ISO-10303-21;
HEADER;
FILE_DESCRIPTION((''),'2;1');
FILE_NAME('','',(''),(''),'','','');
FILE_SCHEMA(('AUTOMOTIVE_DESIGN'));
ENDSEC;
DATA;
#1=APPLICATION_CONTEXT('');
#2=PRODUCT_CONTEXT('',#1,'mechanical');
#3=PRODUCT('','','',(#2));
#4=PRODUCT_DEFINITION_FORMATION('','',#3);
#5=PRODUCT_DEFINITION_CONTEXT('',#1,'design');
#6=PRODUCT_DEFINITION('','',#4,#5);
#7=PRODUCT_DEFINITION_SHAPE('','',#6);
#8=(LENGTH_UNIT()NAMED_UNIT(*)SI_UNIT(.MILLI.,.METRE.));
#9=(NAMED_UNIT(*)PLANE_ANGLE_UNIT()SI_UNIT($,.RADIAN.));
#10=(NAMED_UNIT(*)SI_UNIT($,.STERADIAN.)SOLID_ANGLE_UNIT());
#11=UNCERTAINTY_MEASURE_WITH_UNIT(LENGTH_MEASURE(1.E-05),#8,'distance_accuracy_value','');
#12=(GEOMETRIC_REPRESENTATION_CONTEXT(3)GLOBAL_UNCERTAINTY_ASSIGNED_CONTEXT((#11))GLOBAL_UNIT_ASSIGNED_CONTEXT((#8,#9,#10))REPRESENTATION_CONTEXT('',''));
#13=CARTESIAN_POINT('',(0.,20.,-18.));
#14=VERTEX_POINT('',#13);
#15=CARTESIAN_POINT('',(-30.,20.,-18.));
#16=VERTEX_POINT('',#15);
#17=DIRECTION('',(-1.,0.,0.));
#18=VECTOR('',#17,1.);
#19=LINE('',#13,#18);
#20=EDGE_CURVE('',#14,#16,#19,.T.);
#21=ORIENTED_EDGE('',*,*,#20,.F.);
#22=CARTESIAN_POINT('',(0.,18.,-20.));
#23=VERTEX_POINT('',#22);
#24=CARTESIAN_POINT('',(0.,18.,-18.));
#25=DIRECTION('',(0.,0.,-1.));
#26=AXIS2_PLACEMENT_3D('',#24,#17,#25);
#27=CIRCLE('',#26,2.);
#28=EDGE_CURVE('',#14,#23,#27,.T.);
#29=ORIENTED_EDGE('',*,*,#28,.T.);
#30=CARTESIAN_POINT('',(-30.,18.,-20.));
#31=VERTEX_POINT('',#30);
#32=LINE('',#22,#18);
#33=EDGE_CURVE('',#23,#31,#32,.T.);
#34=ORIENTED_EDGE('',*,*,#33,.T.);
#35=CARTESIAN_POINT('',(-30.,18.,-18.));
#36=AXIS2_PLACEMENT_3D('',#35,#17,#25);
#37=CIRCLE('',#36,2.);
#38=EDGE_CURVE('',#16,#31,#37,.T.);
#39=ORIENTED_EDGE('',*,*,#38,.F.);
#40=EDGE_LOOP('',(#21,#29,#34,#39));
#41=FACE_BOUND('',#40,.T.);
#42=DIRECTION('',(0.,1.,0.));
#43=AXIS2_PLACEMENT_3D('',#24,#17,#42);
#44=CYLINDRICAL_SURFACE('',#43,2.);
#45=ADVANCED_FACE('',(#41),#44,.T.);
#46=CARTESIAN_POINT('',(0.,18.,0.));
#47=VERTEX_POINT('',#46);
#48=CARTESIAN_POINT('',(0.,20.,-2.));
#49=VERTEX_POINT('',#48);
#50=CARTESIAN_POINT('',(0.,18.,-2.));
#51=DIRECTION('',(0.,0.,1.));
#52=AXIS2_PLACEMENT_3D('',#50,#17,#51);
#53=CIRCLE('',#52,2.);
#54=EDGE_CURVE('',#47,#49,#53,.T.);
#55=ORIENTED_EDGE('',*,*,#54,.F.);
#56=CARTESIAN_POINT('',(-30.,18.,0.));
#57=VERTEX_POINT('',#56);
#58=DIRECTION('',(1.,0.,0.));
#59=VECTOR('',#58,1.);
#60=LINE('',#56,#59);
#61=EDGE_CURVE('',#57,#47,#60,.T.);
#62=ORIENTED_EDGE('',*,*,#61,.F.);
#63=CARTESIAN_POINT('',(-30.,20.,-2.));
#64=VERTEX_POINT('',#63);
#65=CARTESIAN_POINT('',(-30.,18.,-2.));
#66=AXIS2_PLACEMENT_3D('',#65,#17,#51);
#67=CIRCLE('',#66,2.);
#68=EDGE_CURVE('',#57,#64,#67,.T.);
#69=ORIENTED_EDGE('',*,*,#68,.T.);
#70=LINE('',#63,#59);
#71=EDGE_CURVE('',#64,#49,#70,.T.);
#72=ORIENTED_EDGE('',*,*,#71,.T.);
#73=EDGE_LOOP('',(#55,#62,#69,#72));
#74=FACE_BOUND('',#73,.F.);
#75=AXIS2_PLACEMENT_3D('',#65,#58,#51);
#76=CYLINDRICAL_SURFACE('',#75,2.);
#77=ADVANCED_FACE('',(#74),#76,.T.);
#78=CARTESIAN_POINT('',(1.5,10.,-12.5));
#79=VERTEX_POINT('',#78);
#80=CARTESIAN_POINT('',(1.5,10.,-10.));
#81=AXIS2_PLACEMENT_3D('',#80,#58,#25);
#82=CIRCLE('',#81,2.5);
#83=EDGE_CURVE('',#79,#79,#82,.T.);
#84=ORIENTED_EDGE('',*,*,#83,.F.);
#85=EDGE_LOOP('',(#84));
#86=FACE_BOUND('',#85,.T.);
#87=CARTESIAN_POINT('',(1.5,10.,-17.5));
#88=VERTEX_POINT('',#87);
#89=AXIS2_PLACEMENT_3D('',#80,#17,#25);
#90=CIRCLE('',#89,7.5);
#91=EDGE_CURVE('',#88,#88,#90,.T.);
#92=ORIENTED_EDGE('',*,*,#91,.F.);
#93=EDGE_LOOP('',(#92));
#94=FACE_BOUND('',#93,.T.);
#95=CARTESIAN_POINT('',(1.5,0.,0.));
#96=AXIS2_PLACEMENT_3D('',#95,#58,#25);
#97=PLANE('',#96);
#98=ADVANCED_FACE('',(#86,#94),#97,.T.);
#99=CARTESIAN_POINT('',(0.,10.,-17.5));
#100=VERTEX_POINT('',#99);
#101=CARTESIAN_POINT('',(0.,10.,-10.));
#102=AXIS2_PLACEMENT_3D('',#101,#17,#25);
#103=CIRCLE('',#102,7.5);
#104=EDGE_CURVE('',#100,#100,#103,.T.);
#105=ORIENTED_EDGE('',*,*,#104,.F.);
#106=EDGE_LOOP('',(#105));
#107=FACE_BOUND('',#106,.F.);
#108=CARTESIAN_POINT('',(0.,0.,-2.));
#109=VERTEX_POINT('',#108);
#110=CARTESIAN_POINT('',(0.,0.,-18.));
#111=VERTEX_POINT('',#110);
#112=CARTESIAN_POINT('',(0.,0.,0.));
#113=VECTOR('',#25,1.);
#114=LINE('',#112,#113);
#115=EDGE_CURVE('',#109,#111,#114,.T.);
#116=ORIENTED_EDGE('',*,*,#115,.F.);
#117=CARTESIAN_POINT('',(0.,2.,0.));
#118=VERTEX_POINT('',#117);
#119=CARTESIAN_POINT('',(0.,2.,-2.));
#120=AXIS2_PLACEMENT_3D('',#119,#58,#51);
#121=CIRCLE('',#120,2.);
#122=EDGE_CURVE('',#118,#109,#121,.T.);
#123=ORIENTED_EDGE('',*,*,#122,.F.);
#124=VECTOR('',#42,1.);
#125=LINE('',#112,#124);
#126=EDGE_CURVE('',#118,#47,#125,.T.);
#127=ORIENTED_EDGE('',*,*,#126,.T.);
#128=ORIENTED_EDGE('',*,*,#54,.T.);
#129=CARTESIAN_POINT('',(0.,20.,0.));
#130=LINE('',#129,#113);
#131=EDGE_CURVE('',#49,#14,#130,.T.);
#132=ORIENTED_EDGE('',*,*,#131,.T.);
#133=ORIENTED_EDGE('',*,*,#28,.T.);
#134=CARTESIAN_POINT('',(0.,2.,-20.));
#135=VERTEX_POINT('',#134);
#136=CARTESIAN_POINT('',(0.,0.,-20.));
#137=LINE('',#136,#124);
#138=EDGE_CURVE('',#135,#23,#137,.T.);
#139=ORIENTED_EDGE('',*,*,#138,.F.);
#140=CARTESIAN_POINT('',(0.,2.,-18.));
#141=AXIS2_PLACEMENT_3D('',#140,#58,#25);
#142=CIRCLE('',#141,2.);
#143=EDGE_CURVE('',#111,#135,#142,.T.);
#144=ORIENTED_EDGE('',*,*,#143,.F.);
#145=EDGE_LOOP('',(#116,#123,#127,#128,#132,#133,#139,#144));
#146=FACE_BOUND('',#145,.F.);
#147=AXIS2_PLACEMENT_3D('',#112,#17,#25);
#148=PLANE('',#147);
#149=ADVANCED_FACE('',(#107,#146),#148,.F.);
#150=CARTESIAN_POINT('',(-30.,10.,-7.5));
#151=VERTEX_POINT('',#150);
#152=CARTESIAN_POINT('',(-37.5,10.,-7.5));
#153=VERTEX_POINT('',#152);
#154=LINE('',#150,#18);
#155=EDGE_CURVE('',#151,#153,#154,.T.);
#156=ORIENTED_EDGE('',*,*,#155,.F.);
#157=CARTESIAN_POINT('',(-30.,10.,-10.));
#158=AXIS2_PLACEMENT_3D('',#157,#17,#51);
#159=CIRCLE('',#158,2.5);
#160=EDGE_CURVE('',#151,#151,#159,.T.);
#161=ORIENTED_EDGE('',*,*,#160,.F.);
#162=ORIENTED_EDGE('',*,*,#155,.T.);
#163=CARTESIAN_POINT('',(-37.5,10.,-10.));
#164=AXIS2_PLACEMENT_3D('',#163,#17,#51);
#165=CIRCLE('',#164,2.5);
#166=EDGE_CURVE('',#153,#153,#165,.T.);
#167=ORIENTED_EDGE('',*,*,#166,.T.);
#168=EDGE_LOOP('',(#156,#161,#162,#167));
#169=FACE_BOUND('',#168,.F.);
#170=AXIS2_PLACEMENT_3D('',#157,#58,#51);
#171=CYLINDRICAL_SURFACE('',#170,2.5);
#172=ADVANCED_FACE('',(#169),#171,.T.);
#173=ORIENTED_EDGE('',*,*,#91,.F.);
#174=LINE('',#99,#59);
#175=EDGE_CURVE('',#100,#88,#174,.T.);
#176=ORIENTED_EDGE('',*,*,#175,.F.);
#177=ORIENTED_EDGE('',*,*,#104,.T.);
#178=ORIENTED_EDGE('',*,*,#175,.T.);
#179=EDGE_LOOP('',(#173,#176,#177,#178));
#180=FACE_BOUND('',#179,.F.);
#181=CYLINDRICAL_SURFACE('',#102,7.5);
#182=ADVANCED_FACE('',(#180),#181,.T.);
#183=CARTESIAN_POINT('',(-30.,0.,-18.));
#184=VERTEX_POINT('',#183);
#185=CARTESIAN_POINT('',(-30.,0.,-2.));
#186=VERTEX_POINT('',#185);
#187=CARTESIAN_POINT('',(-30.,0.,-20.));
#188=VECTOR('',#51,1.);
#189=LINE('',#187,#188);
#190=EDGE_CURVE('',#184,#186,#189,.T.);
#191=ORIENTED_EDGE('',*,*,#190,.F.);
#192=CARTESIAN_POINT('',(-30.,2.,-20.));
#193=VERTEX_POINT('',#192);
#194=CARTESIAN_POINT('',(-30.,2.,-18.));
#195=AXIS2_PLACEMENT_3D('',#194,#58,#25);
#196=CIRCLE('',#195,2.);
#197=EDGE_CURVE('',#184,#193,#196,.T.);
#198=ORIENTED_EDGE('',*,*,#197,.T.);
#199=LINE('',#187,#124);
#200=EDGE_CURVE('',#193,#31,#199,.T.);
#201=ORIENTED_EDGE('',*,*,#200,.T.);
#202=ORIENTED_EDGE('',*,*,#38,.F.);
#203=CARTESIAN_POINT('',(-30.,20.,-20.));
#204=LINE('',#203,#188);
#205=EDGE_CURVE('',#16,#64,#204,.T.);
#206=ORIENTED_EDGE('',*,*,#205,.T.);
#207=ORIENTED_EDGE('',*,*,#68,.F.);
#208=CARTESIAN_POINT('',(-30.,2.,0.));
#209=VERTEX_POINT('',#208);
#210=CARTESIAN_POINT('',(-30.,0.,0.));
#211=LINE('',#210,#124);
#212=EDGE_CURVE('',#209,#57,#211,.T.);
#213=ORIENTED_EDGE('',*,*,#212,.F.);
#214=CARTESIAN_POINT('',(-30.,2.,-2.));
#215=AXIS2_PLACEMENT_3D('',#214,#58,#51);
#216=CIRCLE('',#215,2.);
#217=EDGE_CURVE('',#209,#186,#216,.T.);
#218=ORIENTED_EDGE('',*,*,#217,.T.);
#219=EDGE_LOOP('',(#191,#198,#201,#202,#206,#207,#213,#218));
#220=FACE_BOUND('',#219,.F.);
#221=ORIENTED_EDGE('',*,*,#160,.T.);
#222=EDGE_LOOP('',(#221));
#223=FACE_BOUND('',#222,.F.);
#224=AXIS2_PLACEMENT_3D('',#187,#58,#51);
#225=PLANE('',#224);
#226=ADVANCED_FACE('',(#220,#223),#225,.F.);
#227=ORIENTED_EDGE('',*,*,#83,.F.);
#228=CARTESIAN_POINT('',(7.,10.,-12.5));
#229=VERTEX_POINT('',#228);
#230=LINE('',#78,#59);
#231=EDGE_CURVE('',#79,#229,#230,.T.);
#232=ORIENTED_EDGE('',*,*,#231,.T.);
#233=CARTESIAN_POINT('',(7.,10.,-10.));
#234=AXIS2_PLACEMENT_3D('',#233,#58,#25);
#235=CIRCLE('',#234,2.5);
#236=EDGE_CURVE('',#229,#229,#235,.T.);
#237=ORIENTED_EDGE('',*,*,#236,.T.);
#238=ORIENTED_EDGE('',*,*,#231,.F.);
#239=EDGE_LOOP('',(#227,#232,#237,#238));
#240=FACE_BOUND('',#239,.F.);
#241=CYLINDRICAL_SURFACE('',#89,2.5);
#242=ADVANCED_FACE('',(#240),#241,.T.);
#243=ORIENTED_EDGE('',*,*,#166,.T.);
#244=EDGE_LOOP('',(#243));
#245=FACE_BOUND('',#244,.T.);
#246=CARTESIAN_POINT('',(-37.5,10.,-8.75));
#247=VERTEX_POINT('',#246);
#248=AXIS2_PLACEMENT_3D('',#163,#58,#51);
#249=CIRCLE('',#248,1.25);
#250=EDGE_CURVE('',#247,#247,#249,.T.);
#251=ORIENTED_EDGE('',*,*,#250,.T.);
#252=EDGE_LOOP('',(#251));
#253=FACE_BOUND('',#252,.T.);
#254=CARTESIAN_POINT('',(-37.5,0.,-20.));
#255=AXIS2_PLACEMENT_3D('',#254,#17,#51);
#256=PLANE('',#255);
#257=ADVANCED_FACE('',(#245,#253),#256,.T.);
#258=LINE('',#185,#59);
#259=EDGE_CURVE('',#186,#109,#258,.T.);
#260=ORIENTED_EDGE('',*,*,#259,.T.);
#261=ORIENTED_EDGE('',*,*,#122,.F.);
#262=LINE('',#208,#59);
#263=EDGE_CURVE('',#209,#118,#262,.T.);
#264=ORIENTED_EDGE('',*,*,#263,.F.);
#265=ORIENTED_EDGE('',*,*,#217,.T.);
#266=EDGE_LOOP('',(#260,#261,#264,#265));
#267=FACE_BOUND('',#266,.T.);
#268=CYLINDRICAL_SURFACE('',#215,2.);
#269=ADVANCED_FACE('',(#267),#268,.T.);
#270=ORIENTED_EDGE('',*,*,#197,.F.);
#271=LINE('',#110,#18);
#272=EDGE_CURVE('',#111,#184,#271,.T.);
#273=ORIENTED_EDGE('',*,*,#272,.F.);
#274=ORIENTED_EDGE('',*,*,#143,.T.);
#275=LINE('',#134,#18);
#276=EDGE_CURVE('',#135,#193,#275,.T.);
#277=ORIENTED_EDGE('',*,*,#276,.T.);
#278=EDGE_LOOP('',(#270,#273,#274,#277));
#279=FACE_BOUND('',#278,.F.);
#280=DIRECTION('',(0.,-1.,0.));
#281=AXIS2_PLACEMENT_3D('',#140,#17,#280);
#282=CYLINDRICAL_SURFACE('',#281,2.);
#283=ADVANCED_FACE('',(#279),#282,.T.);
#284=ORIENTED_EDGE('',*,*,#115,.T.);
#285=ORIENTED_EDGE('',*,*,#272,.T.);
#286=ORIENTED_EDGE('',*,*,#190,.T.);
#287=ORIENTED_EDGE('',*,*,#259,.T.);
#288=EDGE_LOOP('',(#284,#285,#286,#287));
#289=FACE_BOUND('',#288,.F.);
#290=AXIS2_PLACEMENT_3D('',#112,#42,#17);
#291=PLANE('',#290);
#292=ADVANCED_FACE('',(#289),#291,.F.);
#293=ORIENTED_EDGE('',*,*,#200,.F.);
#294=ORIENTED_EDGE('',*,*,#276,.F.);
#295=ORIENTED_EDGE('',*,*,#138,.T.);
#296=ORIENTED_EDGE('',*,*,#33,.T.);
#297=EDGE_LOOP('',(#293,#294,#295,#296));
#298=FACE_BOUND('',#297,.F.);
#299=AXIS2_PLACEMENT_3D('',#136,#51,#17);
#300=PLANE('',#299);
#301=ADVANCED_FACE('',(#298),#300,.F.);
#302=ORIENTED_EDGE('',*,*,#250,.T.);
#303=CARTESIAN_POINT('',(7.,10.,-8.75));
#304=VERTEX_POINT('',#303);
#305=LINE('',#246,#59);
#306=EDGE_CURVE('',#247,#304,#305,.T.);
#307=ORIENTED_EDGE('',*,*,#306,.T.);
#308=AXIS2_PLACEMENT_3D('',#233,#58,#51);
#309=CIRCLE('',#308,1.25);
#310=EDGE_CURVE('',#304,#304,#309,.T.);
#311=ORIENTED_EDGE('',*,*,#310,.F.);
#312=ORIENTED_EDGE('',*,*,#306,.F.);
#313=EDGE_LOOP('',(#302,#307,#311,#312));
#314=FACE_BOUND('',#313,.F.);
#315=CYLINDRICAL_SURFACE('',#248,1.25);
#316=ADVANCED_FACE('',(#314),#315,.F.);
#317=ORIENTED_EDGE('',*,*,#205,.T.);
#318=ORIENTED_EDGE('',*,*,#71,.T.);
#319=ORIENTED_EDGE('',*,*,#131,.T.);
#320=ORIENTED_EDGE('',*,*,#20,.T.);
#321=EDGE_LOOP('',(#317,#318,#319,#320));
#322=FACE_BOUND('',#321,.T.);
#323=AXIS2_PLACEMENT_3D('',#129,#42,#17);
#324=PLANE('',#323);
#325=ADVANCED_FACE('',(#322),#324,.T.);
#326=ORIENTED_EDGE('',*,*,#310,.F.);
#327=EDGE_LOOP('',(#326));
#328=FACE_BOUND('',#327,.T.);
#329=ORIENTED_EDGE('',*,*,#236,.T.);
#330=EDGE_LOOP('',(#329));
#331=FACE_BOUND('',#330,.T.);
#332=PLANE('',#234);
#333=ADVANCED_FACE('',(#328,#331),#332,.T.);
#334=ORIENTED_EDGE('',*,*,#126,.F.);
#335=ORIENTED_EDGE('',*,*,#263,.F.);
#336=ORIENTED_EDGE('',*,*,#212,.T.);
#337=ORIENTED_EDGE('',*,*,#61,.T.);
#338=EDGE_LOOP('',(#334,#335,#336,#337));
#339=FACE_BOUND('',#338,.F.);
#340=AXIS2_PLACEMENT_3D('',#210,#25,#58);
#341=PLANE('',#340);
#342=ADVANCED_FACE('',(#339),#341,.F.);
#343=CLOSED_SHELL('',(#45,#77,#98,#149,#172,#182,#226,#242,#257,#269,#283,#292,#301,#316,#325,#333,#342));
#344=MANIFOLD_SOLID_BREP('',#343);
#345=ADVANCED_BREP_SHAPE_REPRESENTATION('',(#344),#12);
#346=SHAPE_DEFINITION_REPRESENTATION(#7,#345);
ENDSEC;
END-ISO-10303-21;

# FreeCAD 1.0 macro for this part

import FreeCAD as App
import Part
import Sketcher


def edges_at(feature, points):
    """Names of the edges that pass closest to the given points."""
    edges = feature.Shape.Edges
    near = lambda p: min(range(len(edges)), key=lambda i: edges[i].distToShape(Part.Vertex(*p))[0])
    return sorted({f"Edge{near(p) + 1}" for p in points})

doc = App.newDocument("Part")
params = doc.addObject("Spreadsheet::Sheet", "Params")
for row, (alias, value) in enumerate([
    ("sketch1_width", "30 mm"),
    ("sketch1_height", "20 mm"),
    ("pad1_length", "20 mm"),
    ("sketch2_diameter", "15 mm"),
    ("pad2_length", "1.5 mm"),
    ("sketch3_diameter", "5 mm"),
    ("pad3_length", "5.5 mm"),
    ("sketch4_diameter", "5 mm"),
    ("pad4_length", "7.5 mm"),
    ("sketch5_diameter", "2.5 mm"),
    ("hole_diameter", "2.5 mm"),
    ("fillet_radius", "2 mm"),
], start=1):
    params.set(f"A{row}", alias)
    params.set(f"B{row}", "=" + value)
    params.setAlias(f"B{row}", alias)

body = doc.addObject("PartDesign::Body", "Body")

# Sketch on XZ plane
sketch1 = body.newObject("Sketcher::SketchObject", "Sketch")
sketch1.AttachmentSupport = (doc.getObject("XZ_Plane"), [""])
sketch1.MapMode = "FlatFace"
sketch1.addGeometry(Part.LineSegment(App.Vector(-30, 0, 0), App.Vector(0, 0, 0)), False)
sketch1.addGeometry(Part.LineSegment(App.Vector(0, 0, 0), App.Vector(0, -20, 0)), False)
sketch1.addGeometry(Part.LineSegment(App.Vector(0, -20, 0), App.Vector(-30, -20, 0)), False)
sketch1.addGeometry(Part.LineSegment(App.Vector(-30, -20, 0), App.Vector(-30, 0, 0)), False)
sketch1.addConstraint(Sketcher.Constraint("Coincident", 0, 2, 1, 1))
sketch1.addConstraint(Sketcher.Constraint("Coincident", 1, 2, 2, 1))
sketch1.addConstraint(Sketcher.Constraint("Coincident", 2, 2, 3, 1))
sketch1.addConstraint(Sketcher.Constraint("Coincident", 3, 2, 0, 1))
sketch1.addConstraint(Sketcher.Constraint("Horizontal", 0))
sketch1.addConstraint(Sketcher.Constraint("Vertical", 1))
sketch1.addConstraint(Sketcher.Constraint("Horizontal", 2))
sketch1.addConstraint(Sketcher.Constraint("Vertical", 3))
sketch1.addConstraint(Sketcher.Constraint("Coincident", 0, 2, -1, 1))
sketch1.addConstraint(Sketcher.Constraint("DistanceX", 0, 1, 0, 2, 30.0))
sketch1.addConstraint(Sketcher.Constraint("DistanceY", 1, 2, 1, 1, 20.0))
sketch1.setExpression("Constraints[9]", "Params.sketch1_width")
sketch1.setExpression("Constraints[10]", "Params.sketch1_height")
pad1 = body.newObject("PartDesign::Pad", "Pad")
pad1.Profile = sketch1
pad1.setExpression("Length", "Params.pad1_length")
pad1.Reversed = True

# Sketch on YZ plane
sketch2 = body.newObject("Sketcher::SketchObject", "Sketch001")
sketch2.AttachmentSupport = (doc.getObject("YZ_Plane"), [""])
sketch2.MapMode = "FlatFace"
sketch2.addGeometry(Part.Circle(App.Vector(10, -10, 0), App.Vector(0, 0, 1), 8), False)
sketch2.addConstraint(Sketcher.Constraint("Diameter", 0, 15.0))
sketch2.addConstraint(Sketcher.Constraint("DistanceX", -1, 1, 0, 3, 10.0))
sketch2.addConstraint(Sketcher.Constraint("DistanceY", 0, 3, -1, 1, 10.0))
sketch2.setExpression("Constraints[0]", "Params.sketch2_diameter")
pad2 = body.newObject("PartDesign::Pad", "Pad001")
pad2.Profile = sketch2
pad2.setExpression("Length", "Params.pad2_length")

# Sketch on YZ plane
sketch3 = body.newObject("Sketcher::SketchObject", "Sketch002")
sketch3.AttachmentSupport = (doc.getObject("YZ_Plane"), [""])
sketch3.MapMode = "FlatFace"
sketch3.AttachmentOffset = App.Placement(App.Vector(0, 0, 1.5), App.Rotation())
sketch3.addGeometry(Part.Circle(App.Vector(10, -10, 0), App.Vector(0, 0, 1), 2.5), False)
sketch3.addConstraint(Sketcher.Constraint("Diameter", 0, 5.0))
sketch3.addConstraint(Sketcher.Constraint("DistanceX", -1, 1, 0, 3, 10.0))
sketch3.addConstraint(Sketcher.Constraint("DistanceY", 0, 3, -1, 1, 10.0))
sketch3.setExpression("Constraints[0]", "Params.sketch3_diameter")
pad3 = body.newObject("PartDesign::Pad", "Pad002")
pad3.Profile = sketch3
pad3.setExpression("Length", "Params.pad3_length")

# Sketch on YZ plane
sketch4 = body.newObject("Sketcher::SketchObject", "Sketch003")
sketch4.AttachmentSupport = (doc.getObject("YZ_Plane"), [""])
sketch4.MapMode = "FlatFace"
sketch4.AttachmentOffset = App.Placement(App.Vector(0, 0, -30), App.Rotation())
sketch4.addGeometry(Part.Circle(App.Vector(10, -10, 0), App.Vector(0, 0, 1), 2.5), False)
sketch4.addConstraint(Sketcher.Constraint("Diameter", 0, 5.0))
sketch4.addConstraint(Sketcher.Constraint("DistanceX", -1, 1, 0, 3, 10.0))
sketch4.addConstraint(Sketcher.Constraint("DistanceY", 0, 3, -1, 1, 10.0))
sketch4.setExpression("Constraints[0]", "Params.sketch4_diameter")
pad4 = body.newObject("PartDesign::Pad", "Pad003")
pad4.Profile = sketch4
pad4.setExpression("Length", "Params.pad4_length")
pad4.Reversed = True

# Sketch on YZ plane
sketch5 = body.newObject("Sketcher::SketchObject", "Sketch004")
sketch5.AttachmentSupport = (doc.getObject("YZ_Plane"), [""])
sketch5.MapMode = "FlatFace"
sketch5.AttachmentOffset = App.Placement(App.Vector(0, 0, -37.5), App.Rotation())
sketch5.addGeometry(Part.Circle(App.Vector(10, -10, 0), App.Vector(0, 0, 1), 1.2), False)
sketch5.addConstraint(Sketcher.Constraint("Diameter", 0, 2.5))
sketch5.addConstraint(Sketcher.Constraint("DistanceX", -1, 1, 0, 3, 10.0))
sketch5.addConstraint(Sketcher.Constraint("DistanceY", 0, 3, -1, 1, 10.0))
sketch5.setExpression("Constraints[0]", "Params.sketch5_diameter")
doc.recompute()
hole = body.newObject("PartDesign::Hole", "Hole")
hole.Profile = sketch5
hole.ThreadType = "None"
hole.setExpression("Diameter", "Params.hole_diameter")
hole.DepthType = "ThroughAll"
hole.Reversed = True
doc.recompute()

fillet = body.newObject("PartDesign::Fillet", "Fillet")
fillet.Base = (hole, edges_at(hole, [
    (-15, 20, -20),
    (-15, 20, 0),
    (-15, 0, -20),
    (-15, 0, 0),
]))
fillet.setExpression("Radius", "Params.fillet_radius")

doc.recompute()
